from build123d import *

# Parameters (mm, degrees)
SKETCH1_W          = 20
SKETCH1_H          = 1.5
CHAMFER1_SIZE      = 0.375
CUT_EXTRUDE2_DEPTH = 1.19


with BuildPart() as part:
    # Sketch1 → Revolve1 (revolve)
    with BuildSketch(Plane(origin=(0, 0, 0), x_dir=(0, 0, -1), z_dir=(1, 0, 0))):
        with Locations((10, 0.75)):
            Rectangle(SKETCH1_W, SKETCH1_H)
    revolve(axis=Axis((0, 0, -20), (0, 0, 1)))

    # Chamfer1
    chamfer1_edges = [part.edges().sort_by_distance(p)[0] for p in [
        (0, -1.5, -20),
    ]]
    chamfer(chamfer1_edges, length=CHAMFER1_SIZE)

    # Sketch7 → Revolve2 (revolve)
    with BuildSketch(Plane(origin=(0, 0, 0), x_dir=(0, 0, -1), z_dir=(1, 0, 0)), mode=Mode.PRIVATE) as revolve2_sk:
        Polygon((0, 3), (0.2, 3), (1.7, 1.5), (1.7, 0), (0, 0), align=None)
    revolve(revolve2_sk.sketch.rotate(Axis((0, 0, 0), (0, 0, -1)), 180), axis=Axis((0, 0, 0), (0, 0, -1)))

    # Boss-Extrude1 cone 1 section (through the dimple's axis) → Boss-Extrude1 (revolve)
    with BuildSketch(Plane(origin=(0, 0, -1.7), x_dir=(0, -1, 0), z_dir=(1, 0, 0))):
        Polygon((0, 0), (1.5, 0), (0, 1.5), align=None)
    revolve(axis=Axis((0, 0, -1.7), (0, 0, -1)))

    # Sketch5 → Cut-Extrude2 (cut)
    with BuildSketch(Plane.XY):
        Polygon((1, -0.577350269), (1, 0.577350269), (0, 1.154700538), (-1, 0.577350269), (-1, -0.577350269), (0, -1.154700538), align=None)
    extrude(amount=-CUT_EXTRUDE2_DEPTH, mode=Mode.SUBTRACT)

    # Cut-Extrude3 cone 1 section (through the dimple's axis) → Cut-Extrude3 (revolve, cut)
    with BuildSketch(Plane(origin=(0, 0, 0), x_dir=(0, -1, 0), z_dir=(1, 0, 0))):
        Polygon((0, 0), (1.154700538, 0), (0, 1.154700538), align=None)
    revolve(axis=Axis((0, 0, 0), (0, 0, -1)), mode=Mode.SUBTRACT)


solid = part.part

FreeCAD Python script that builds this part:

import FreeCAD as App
import Part
import Sketcher

V = App.Vector
Q = App.Units.Quantity


def edges_at(feature, points):
    """Names of the edges that pass closest to the given points."""
    edges = feature.Shape.Edges
    near = lambda p: min(range(len(edges)), key=lambda i: edges[i].distToShape(Part.Vertex(*p))[0])
    return sorted({f"Edge{near(p) + 1}" for p in points})

doc = App.newDocument("Part")
body = doc.addObject("PartDesign::Body", "Body")

# Sketch on YZ plane
sketch1 = body.newObject("Sketcher::SketchObject", "Sketch")
sketch1.AttachmentSupport = (doc.getObject("YZ_Plane"), [""])
sketch1.MapMode = "FlatFace"
sketch1.addGeometry(Part.LineSegment(V(1.5, 0, 0), V(0, 0, 0)), False)
sketch1.addGeometry(Part.LineSegment(V(0, 0, 0), V(0, -20, 0)), False)
sketch1.addGeometry(Part.LineSegment(V(0, -20, 0), V(1.5, -20, 0)), False)
sketch1.addGeometry(Part.LineSegment(V(1.5, -20, 0), V(1.5, 0, 0)), False)
sketch1.addConstraint(Sketcher.Constraint("Coincident", 0, 2, 1, 1))
sketch1.addConstraint(Sketcher.Constraint("Coincident", 1, 2, 2, 1))
sketch1.addConstraint(Sketcher.Constraint("Coincident", 2, 2, 3, 1))
sketch1.addConstraint(Sketcher.Constraint("Coincident", 3, 2, 0, 1))
sketch1.addConstraint(Sketcher.Constraint("Horizontal", 0))
sketch1.addConstraint(Sketcher.Constraint("Vertical", 1))
sketch1.addConstraint(Sketcher.Constraint("Horizontal", 2))
sketch1.addConstraint(Sketcher.Constraint("Vertical", 3))
sketch1.addConstraint(Sketcher.Constraint("Coincident", 0, 2, -1, 1))
sketch1.addConstraint(Sketcher.Constraint("DistanceY", 1, 2, 1, 1, 20.0))
sketch1.addConstraint(Sketcher.Constraint("DistanceX", 0, 2, 0, 1, 1.5))
revolution = body.newObject("PartDesign::Revolution", "Revolution")
revolution.Profile = sketch1
revolution.ReferenceAxis = (sketch1, ["V_Axis"])
revolution.Angle = 360
doc.recompute()

chamfer = body.newObject("PartDesign::Chamfer", "Chamfer")
chamfer.Base = (revolution, edges_at(revolution, [(0, -1.5, -20)]))
chamfer.Size = 0.375

# Sketch on YZ plane
sketch2 = body.newObject("Sketcher::SketchObject", "Sketch001")
sketch2.AttachmentSupport = (doc.getObject("YZ_Plane"), [""])
sketch2.MapMode = "FlatFace"
sketch2.addGeometry(Part.LineSegment(V(3, -0.2, 0), V(3, 0, 0)), False)
sketch2.addGeometry(Part.LineSegment(V(3, 0, 0), V(0, 0, 0)), False)
sketch2.addGeometry(Part.LineSegment(V(0, 0, 0), V(0, -1.7, 0)), False)
sketch2.addGeometry(Part.LineSegment(V(0, -1.7, 0), V(1.5, -1.7, 0)), False)
sketch2.addGeometry(Part.LineSegment(V(1.5, -1.7, 0), V(3, -0.2, 0)), False)
sketch2.addConstraint(Sketcher.Constraint("Coincident", 0, 2, 1, 1))
sketch2.addConstraint(Sketcher.Constraint("Coincident", 1, 2, 2, 1))
sketch2.addConstraint(Sketcher.Constraint("Coincident", 2, 2, 3, 1))
sketch2.addConstraint(Sketcher.Constraint("Coincident", 3, 2, 4, 1))
sketch2.addConstraint(Sketcher.Constraint("Coincident", 4, 2, 0, 1))
sketch2.addConstraint(Sketcher.Constraint("Vertical", 0))
sketch2.addConstraint(Sketcher.Constraint("Horizontal", 1))
sketch2.addConstraint(Sketcher.Constraint("Vertical", 2))
sketch2.addConstraint(Sketcher.Constraint("Horizontal", 3))
sketch2.addConstraint(Sketcher.Constraint("Coincident", 1, 2, -1, 1))
sketch2.addConstraint(Sketcher.Constraint("DistanceX", 1, 2, 1, 1, 3.0))
sketch2.addConstraint(Sketcher.Constraint("Angle", 4, Q("45 deg")))
sketch2.addConstraint(Sketcher.Constraint("DistanceX", 3, 1, 3, 2, 1.5))
sketch2.addConstraint(Sketcher.Constraint("DistanceY", 0, 1, 0, 2, 0.2))
revolution2 = body.newObject("PartDesign::Revolution", "Revolution001")
revolution2.Profile = sketch2
revolution2.ReferenceAxis = (sketch2, ["V_Axis"])
revolution2.Angle = 360

# Sketch on YZ plane
sketch3 = body.newObject("Sketcher::SketchObject", "Sketch002")
sketch3.AttachmentSupport = (doc.getObject("YZ_Plane"), [""])
sketch3.MapMode = "FlatFace"
sketch3.addGeometry(Part.LineSegment(V(0, -1.7, 0), V(-1.5, -1.7, 0)), False)
sketch3.addGeometry(Part.LineSegment(V(-1.5, -1.7, 0), V(0, -3.2, 0)), False)
sketch3.addGeometry(Part.LineSegment(V(0, -3.2, 0), V(0, -1.7, 0)), False)
sketch3.addConstraint(Sketcher.Constraint("Coincident", 0, 2, 1, 1))
sketch3.addConstraint(Sketcher.Constraint("Coincident", 1, 2, 2, 1))
sketch3.addConstraint(Sketcher.Constraint("Coincident", 2, 2, 0, 1))
sketch3.addConstraint(Sketcher.Constraint("Horizontal", 0))
sketch3.addConstraint(Sketcher.Constraint("Vertical", 2))
sketch3.addConstraint(Sketcher.Constraint("PointOnObject", 1, 2, -2))
sketch3.addConstraint(Sketcher.Constraint("Equal", 0, 2))
sketch3.addConstraint(Sketcher.Constraint("DistanceX", 0, 2, 0, 1, 1.5))
sketch3.addConstraint(Sketcher.Constraint("DistanceY", 0, 2, -1, 1, 1.7))
revolution3 = body.newObject("PartDesign::Revolution", "Revolution002")
revolution3.Profile = sketch3
revolution3.ReferenceAxis = (sketch3, ["V_Axis"])
revolution3.Angle = 360

# Sketch on XY plane
sketch4 = body.newObject("Sketcher::SketchObject", "Sketch003")
sketch4.AttachmentSupport = (doc.getObject("XY_Plane"), [""])
sketch4.MapMode = "FlatFace"
sketch4.addGeometry(Part.LineSegment(V(1, -0.57735, 0), V(1, 0.57735, 0)), False)
sketch4.addGeometry(Part.LineSegment(V(1, 0.57735, 0), V(0, 1.154701, 0)), False)
sketch4.addGeometry(Part.LineSegment(V(0, 1.154701, 0), V(-1, 0.57735, 0)), False)
sketch4.addGeometry(Part.LineSegment(V(-1, 0.57735, 0), V(-1, -0.57735, 0)), False)
sketch4.addGeometry(Part.LineSegment(V(-1, -0.57735, 0), V(0, -1.154701, 0)), False)
sketch4.addGeometry(Part.LineSegment(V(0, -1.154701, 0), V(1, -0.57735, 0)), False)
sketch4.addConstraint(Sketcher.Constraint("Coincident", 0, 2, 1, 1))
sketch4.addConstraint(Sketcher.Constraint("Coincident", 1, 2, 2, 1))
sketch4.addConstraint(Sketcher.Constraint("Coincident", 2, 2, 3, 1))
sketch4.addConstraint(Sketcher.Constraint("Coincident", 3, 2, 4, 1))
sketch4.addConstraint(Sketcher.Constraint("Coincident", 4, 2, 5, 1))
sketch4.addConstraint(Sketcher.Constraint("Coincident", 5, 2, 0, 1))
sketch4.addConstraint(Sketcher.Constraint("Vertical", 0))
sketch4.addConstraint(Sketcher.Constraint("Vertical", 3))
sketch4.addConstraint(Sketcher.Constraint("Symmetric", 0, 2, 3, 2, -1, 1))
sketch4.addConstraint(Sketcher.Constraint("Symmetric", 1, 2, 4, 2, -1, 1))
sketch4.addConstraint(Sketcher.Constraint("PointOnObject", 1, 2, -2))
sketch4.addConstraint(Sketcher.Constraint("Parallel", 2, 5))
sketch4.addConstraint(Sketcher.Constraint("Horizontal", 0, 2, 2, 2))
sketch4.addConstraint(Sketcher.Constraint("Angle", 1, Q("150 deg")))
sketch4.addConstraint(Sketcher.Constraint("DistanceX", -1, 1, 0, 2, 1.0))
sketch4.addConstraint(Sketcher.Constraint("DistanceY", 0, 1, 0, 2, 1.154701))
pocket1 = body.newObject("PartDesign::Pocket", "Pocket")
pocket1.Profile = sketch4
pocket1.Length = 1.19

# Sketch on YZ plane
sketch5 = body.newObject("Sketcher::SketchObject", "Sketch004")
sketch5.AttachmentSupport = (doc.getObject("YZ_Plane"), [""])
sketch5.MapMode = "FlatFace"
sketch5.addGeometry(Part.LineSegment(V(0, 0, 0), V(-1.154701, 0, 0)), False)
sketch5.addGeometry(Part.LineSegment(V(-1.154701, 0, 0), V(0, -1.154701, 0)), False)
sketch5.addGeometry(Part.LineSegment(V(0, -1.154701, 0), V(0, 0, 0)), False)
sketch5.addConstraint(Sketcher.Constraint("Coincident", 0, 2, 1, 1))
sketch5.addConstraint(Sketcher.Constraint("Coincident", 1, 2, 2, 1))
sketch5.addConstraint(Sketcher.Constraint("Coincident", 2, 2, 0, 1))
sketch5.addConstraint(Sketcher.Constraint("Horizontal", 0))
sketch5.addConstraint(Sketcher.Constraint("Vertical", 2))
sketch5.addConstraint(Sketcher.Constraint("Coincident", 2, 2, -1, 1))
sketch5.addConstraint(Sketcher.Constraint("Equal", 0, 2))
sketch5.addConstraint(Sketcher.Constraint("DistanceX", 0, 2, 0, 1, 1.154701))
groove = body.newObject("PartDesign::Groove", "Groove")
groove.Profile = sketch5
groove.ReferenceAxis = (sketch5, ["V_Axis"])
groove.Angle = 360

doc.recompute()
